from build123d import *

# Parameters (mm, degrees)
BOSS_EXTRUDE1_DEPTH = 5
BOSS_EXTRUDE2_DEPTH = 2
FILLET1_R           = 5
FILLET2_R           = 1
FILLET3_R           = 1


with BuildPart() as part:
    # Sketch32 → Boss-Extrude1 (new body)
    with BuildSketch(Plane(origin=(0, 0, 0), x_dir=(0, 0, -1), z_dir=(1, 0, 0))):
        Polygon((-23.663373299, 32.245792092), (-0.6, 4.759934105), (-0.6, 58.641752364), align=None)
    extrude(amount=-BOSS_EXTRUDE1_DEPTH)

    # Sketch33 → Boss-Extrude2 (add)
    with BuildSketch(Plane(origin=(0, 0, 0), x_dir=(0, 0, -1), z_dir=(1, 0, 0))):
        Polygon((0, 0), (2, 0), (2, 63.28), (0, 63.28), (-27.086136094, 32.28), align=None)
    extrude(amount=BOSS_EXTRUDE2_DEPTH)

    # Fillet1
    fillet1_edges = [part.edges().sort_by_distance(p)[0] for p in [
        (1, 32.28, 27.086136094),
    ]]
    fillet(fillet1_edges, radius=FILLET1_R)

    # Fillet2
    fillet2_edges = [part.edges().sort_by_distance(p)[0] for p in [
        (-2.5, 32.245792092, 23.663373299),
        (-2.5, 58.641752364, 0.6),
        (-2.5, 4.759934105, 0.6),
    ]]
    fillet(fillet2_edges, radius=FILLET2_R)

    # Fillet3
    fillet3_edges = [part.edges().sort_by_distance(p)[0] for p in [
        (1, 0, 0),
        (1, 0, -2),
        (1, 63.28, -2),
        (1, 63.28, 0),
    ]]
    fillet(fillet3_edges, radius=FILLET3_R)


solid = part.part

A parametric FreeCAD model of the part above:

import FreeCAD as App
import Part
import Sketcher

V = App.Vector
Q = App.Units.Quantity


def edges_at(feature, points):
    """Names of the edges that pass closest to the given points."""
    edges = feature.Shape.Edges
    near = lambda p: min(range(len(edges)), key=lambda i: edges[i].distToShape(Part.Vertex(*p))[0])
    return sorted({f"Edge{near(p) + 1}" for p in points})

doc = App.newDocument("Part")
params = doc.addObject("Spreadsheet::Sheet", "Params")
for row, (alias, value) in enumerate([
    ("pad1_length", "5 mm"),
    ("sketch2_height", "2 mm"),
    ("sketch2_width", "63.28 mm"),
    ("pad2_length", "2 mm"),
    ("fillet_radius", "5 mm"),
    ("fillet2_radius", "1 mm"),
    ("fillet3_radius", "1 mm"),
], start=1):
    params.set(f"A{row}", alias)
    params.set(f"B{row}", "=" + value)
    params.setAlias(f"B{row}", alias)

body = doc.addObject("PartDesign::Body", "Body")

sketch1 = body.newObject("Sketcher::SketchObject", "Sketch")
sketch1.AttachmentSupport = (doc.getObject("YZ_Plane"), [""])
sketch1.MapMode = "FlatFace"
sketch1.addGeometry(Part.LineSegment(V(32, 24, 0), V(5, 1, 0)), False)
sketch1.addGeometry(Part.LineSegment(V(5, 1, 0), V(59, 1, 0)), False)
sketch1.addGeometry(Part.LineSegment(V(59, 1, 0), V(32, 24, 0)), False)
sketch1.addConstraint(Sketcher.Constraint("Coincident", 0, 2, 1, 1))
sketch1.addConstraint(Sketcher.Constraint("Coincident", 1, 2, 2, 1))
sketch1.addConstraint(Sketcher.Constraint("Coincident", 2, 2, 0, 1))
sketch1.addConstraint(Sketcher.Constraint("Horizontal", 1))
sketch1.addConstraint(Sketcher.Constraint("Angle", 0, Q("-140 deg")))
sketch1.addConstraint(Sketcher.Constraint("DistanceY", -1, 1, 0, 2, Q("0.6 mm")))
sketch1.addConstraint(Sketcher.Constraint("DistanceX", 1, 1, 1, 2, Q("53.881818 mm")))
sketch1.addConstraint(Sketcher.Constraint("Distance", 0, Q("35.880239 mm")))
sketch1.addConstraint(Sketcher.Constraint("DistanceX", -1, 1, 0, 2, Q("4.759934 mm")))
pad1 = body.newObject("PartDesign::Pad", "Pad")
pad1.Profile = sketch1
pad1.setExpression("Length", "Params.pad1_length")
pad1.Reversed = True

sketch2 = body.newObject("Sketcher::SketchObject", "Sketch001")
sketch2.AttachmentSupport = (doc.getObject("YZ_Plane"), [""])
sketch2.MapMode = "FlatFace"
sketch2.addGeometry(Part.LineSegment(V(0, 0, 0), V(0, -2, 0)), False)
sketch2.addGeometry(Part.LineSegment(V(0, -2, 0), V(63.3, -2, 0)), False)
sketch2.addGeometry(Part.LineSegment(V(63.3, -2, 0), V(63.3, 0, 0)), False)
sketch2.addGeometry(Part.LineSegment(V(63.3, 0, 0), V(32.3, 27.1, 0)), False)
sketch2.addGeometry(Part.LineSegment(V(32.3, 27.1, 0), V(0, 0, 0)), False)
sketch2.addConstraint(Sketcher.Constraint("Coincident", 0, 2, 1, 1))
sketch2.addConstraint(Sketcher.Constraint("Coincident", 1, 2, 2, 1))
sketch2.addConstraint(Sketcher.Constraint("Coincident", 2, 2, 3, 1))
sketch2.addConstraint(Sketcher.Constraint("Coincident", 3, 2, 4, 1))
sketch2.addConstraint(Sketcher.Constraint("Coincident", 4, 2, 0, 1))
sketch2.addConstraint(Sketcher.Constraint("Vertical", 0))
sketch2.addConstraint(Sketcher.Constraint("Horizontal", 1))
sketch2.addConstraint(Sketcher.Constraint("Vertical", 2))
sketch2.addConstraint(Sketcher.Constraint("Coincident", 4, 2, -1, 1))
sketch2.addConstraint(Sketcher.Constraint("PointOnObject", 2, 2, -1))
sketch2.addConstraint(Sketcher.Constraint("DistanceY", 0, 2, 0, 1, Q("2 mm")))
sketch2.addConstraint(Sketcher.Constraint("Angle", 4, Q("-140 deg")))
sketch2.addConstraint(Sketcher.Constraint("DistanceX", 3, 2, 2, 2, Q("31 mm")))
sketch2.addConstraint(Sketcher.Constraint("DistanceX", 1, 1, 1, 2, Q("63.28 mm")))
sketch2.setExpression("Constraints[10]", "Params.sketch2_height")
sketch2.setExpression("Constraints[13]", "Params.sketch2_width")
pad2 = body.newObject("PartDesign::Pad", "Pad001")
pad2.Profile = sketch2
pad2.setExpression("Length", "Params.pad2_length")
doc.recompute()

fillet = body.newObject("PartDesign::Fillet", "Fillet")
fillet.Base = (pad2, edges_at(pad2, [(1, 32.28, 27.086)]))
fillet.setExpression("Radius", "Params.fillet_radius")
doc.recompute()

fillet2 = body.newObject("PartDesign::Fillet", "Fillet001")
fillet2.Base = (fillet, edges_at(fillet, [(-2.5, 32.246, 23.663), (-2.5, 58.642, 0.6), (-2.5, 4.76, 0.6)]))
fillet2.setExpression("Radius", "Params.fillet2_radius")
doc.recompute()

fillet3 = body.newObject("PartDesign::Fillet", "Fillet002")
fillet3.Base = (fillet2, edges_at(fillet2, [
    (1, 0, 0),
    (1, 0, -2),
    (1, 63.28, -2),
    (1, 63.28, 0),
]))
fillet3.setExpression("Radius", "Params.fillet3_radius")

doc.recompute()
